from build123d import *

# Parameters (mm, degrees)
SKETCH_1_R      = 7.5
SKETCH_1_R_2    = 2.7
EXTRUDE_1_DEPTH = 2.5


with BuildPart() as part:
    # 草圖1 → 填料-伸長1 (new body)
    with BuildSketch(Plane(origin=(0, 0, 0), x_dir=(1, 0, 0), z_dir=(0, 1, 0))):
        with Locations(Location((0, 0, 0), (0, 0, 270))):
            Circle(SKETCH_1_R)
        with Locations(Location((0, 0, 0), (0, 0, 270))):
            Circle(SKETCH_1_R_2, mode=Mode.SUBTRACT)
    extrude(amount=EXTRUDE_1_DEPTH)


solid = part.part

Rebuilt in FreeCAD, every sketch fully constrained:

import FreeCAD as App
import Part
import Sketcher

doc = App.newDocument("Part")
params = doc.addObject("Spreadsheet::Sheet", "Params")
for row, (alias, value) in enumerate([
    ("sketch1_diameter", "15 mm"),
    ("sketch1_diameter2", "5.4 mm"),
    ("pad1_length", "2.5 mm"),
], start=1):
    params.set(f"A{row}", alias)
    params.set(f"B{row}", "=" + value)
    params.setAlias(f"B{row}", alias)

body = doc.addObject("PartDesign::Body", "Body")

sketch1 = doc.addObject("Sketcher::SketchObject", "Sketch")
body.addObject(sketch1)
sketch1.AttachmentSupport = (doc.XZ_Plane, [""])
sketch1.MapMode = "FlatFace"
sketch1.addGeometry([
    Part.Circle(App.Vector(0, 0, 0), App.Vector(0, 0, 1), 7.5),
    Part.Circle(App.Vector(0, 0, 0), App.Vector(0, 0, 1), 2.7),
], False)
sketch1.addConstraint([
    Sketcher.Constraint("Coincident", 0, 3, -1, 1),
    Sketcher.Constraint("Coincident", 1, 3, -1, 1),
    Sketcher.Constraint("Diameter", 0, 15.0),
    Sketcher.Constraint("Diameter", 1, 5.4),
])
sketch1.setExpression("Constraints[2]", "Params.sketch1_diameter")
sketch1.setExpression("Constraints[3]", "Params.sketch1_diameter2")
pad1 = doc.addObject("PartDesign::Pad", "Pad")
body.addObject(pad1)
pad1.Profile = sketch1
pad1.setExpression("Length", "Params.pad1_length")
pad1.Reversed = True

doc.recompute()
